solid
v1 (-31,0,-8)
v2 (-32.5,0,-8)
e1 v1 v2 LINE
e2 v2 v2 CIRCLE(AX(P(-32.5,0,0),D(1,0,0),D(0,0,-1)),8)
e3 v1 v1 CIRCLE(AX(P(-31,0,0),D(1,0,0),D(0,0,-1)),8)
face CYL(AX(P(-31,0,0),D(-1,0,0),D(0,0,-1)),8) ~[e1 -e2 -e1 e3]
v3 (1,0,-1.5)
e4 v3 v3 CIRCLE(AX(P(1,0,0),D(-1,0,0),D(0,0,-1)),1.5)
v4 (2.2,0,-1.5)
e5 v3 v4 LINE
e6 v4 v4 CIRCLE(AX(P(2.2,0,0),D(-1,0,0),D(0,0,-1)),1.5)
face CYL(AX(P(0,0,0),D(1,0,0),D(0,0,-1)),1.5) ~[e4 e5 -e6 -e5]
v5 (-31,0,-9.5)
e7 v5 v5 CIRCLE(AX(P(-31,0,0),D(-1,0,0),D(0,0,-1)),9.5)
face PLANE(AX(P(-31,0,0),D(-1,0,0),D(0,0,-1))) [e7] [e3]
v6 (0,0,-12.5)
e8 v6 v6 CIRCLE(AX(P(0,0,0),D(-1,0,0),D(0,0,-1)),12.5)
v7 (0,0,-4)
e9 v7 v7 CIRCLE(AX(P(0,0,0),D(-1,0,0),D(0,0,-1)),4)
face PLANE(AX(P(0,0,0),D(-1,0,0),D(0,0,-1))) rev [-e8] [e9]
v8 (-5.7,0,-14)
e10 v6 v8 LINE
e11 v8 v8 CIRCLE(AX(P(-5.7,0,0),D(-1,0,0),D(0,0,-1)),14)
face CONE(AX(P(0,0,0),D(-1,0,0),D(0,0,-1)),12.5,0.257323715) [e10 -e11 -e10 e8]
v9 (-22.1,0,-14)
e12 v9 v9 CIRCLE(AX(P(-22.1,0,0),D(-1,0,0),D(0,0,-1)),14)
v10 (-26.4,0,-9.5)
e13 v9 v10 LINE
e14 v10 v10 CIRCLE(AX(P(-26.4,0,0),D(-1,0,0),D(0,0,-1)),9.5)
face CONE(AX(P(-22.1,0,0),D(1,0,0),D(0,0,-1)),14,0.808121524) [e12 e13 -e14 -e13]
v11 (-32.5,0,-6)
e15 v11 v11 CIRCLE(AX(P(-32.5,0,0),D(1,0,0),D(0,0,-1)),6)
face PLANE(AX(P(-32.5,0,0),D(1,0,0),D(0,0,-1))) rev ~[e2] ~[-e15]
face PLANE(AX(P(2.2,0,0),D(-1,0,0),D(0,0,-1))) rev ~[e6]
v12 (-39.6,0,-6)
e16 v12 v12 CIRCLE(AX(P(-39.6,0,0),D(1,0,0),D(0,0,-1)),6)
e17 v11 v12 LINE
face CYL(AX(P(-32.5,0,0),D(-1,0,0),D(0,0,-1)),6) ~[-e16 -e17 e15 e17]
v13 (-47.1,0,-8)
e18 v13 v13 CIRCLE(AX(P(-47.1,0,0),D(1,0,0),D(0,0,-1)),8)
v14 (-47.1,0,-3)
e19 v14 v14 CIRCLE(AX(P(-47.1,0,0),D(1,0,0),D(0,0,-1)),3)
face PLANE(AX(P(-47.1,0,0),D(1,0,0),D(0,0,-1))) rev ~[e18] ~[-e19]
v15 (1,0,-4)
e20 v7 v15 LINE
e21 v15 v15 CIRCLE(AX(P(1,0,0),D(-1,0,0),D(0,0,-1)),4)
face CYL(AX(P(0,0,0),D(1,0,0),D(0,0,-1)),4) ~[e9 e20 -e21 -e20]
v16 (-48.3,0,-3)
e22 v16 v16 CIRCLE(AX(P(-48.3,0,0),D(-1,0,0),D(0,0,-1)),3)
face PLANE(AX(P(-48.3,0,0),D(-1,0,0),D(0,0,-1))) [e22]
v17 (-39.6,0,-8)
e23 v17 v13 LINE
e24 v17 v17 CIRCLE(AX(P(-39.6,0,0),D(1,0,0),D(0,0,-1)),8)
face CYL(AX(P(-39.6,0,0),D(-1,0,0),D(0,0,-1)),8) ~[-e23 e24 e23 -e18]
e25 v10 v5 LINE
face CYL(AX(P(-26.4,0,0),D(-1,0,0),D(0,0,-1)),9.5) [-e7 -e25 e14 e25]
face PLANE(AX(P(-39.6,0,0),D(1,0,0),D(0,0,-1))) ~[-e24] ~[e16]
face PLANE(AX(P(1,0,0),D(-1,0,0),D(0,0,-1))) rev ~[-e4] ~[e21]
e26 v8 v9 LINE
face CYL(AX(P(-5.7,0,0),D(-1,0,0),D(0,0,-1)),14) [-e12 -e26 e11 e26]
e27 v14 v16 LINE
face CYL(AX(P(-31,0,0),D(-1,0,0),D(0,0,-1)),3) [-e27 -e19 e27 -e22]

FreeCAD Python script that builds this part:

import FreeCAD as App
import Part
import Sketcher
from FreeCAD import Vector
Q = App.Units.Quantity

doc = App.newDocument("Part")
body = doc.addObject("PartDesign::Body", "Body")

sketch1 = body.newObject("Sketcher::SketchObject", "Sketch")
sketch1.AttachmentSupport = (doc.getObject("XZ_Plane"), [""])
sketch1.MapMode = "FlatFace"
sketch1.addGeometry([
    Part.LineSegment(Vector(-48.3, 0, 0), Vector(2.2, 0, 0)),
    Part.LineSegment(Vector(2.2, 0, 0), Vector(2.2, -1.5, 0)),
    Part.LineSegment(Vector(2.2, -1.5, 0), Vector(1, -1.5, 0)),
    Part.LineSegment(Vector(1, -1.5, 0), Vector(1, -4, 0)),
    Part.LineSegment(Vector(1, -4, 0), Vector(0, -4, 0)),
    Part.LineSegment(Vector(0, -4, 0), Vector(0, -12.5, 0)),
    Part.LineSegment(Vector(0, -12.5, 0), Vector(-5.7, -14, 0)),
    Part.LineSegment(Vector(-5.7, -14, 0), Vector(-22.1, -14, 0)),
    Part.LineSegment(Vector(-22.1, -14, 0), Vector(-26.4, -9.5, 0)),
    Part.LineSegment(Vector(-26.4, -9.5, 0), Vector(-31, -9.5, 0)),
    Part.LineSegment(Vector(-31, -9.5, 0), Vector(-31, -3, 0)),
    Part.LineSegment(Vector(-31, -3, 0), Vector(-48.3, -3, 0)),
    Part.LineSegment(Vector(-48.3, -3, 0), Vector(-48.3, 0, 0)),
], False)
sketch1.addConstraint([
    Sketcher.Constraint("Coincident", 0, 2, 1, 1),
    Sketcher.Constraint("Coincident", 1, 2, 2, 1),
    Sketcher.Constraint("Coincident", 2, 2, 3, 1),
    Sketcher.Constraint("Coincident", 3, 2, 4, 1),
    Sketcher.Constraint("Coincident", 4, 2, 5, 1),
    Sketcher.Constraint("Coincident", 5, 2, 6, 1),
    Sketcher.Constraint("Coincident", 6, 2, 7, 1),
    Sketcher.Constraint("Coincident", 7, 2, 8, 1),
    Sketcher.Constraint("Coincident", 8, 2, 9, 1),
    Sketcher.Constraint("Coincident", 9, 2, 10, 1),
    Sketcher.Constraint("Coincident", 10, 2, 11, 1),
    Sketcher.Constraint("Coincident", 11, 2, 12, 1),
    Sketcher.Constraint("Coincident", 12, 2, 0, 1),
    Sketcher.Constraint("Horizontal", 0),
    Sketcher.Constraint("Vertical", 1),
    Sketcher.Constraint("Horizontal", 2),
    Sketcher.Constraint("Vertical", 3),
    Sketcher.Constraint("Horizontal", 4),
    Sketcher.Constraint("Vertical", 5),
    Sketcher.Constraint("Horizontal", 7),
    Sketcher.Constraint("Horizontal", 9),
    Sketcher.Constraint("Vertical", 10),
    Sketcher.Constraint("Horizontal", 11),
    Sketcher.Constraint("Vertical", 12),
    Sketcher.Constraint("PointOnObject", 0, 2, -1),
    Sketcher.Constraint("PointOnObject", 4, 2, -2),
    Sketcher.Constraint("DistanceX", 4, 2, 4, 1, Q("1 mm")),
    Sketcher.Constraint("DistanceY", 12, 1, 12, 2, Q("3 mm")),
    Sketcher.Constraint("DistanceX", 7, 2, 7, 1, Q("16.4 mm")),
    Sketcher.Constraint("DistanceX", 9, 2, 9, 1, Q("4.6 mm")),
    Sketcher.Constraint("DistanceY", 1, 2, 1, 1, Q("1.5 mm")),
    Sketcher.Constraint("DistanceY", 3, 2, -1, 1, Q("4 mm")),
    Sketcher.Constraint("DistanceY", 6, 2, -1, 1, Q("14 mm")),
    Sketcher.Constraint("DistanceX", 9, 2, -1, 1, Q("31 mm")),
    Sketcher.Constraint("DistanceY", 5, 2, 8, 2, Q("3 mm")),
    Sketcher.Constraint("DistanceX", -1, 1, 0, 2, Q("2.2 mm")),
    Sketcher.Constraint("DistanceY", 5, 2, -1, 1, Q("12.5 mm")),
    Sketcher.Constraint("DistanceX", 6, 2, -1, 1, Q("5.7 mm")),
    Sketcher.Constraint("DistanceX", 11, 2, -1, 1, Q("48.3 mm")),
])
revolution = body.newObject("PartDesign::Revolution", "Revolution")
revolution.Profile = sketch1
revolution.ReferenceAxis = (sketch1, ["H_Axis"])
revolution.Angle = 360

sketch2 = body.newObject("Sketcher::SketchObject", "Sketch001")
sketch2.AttachmentSupport = (doc.getObject("XZ_Plane"), [""])
sketch2.MapMode = "FlatFace"
sketch2.addGeometry([
    Part.LineSegment(Vector(-47.1, -3, 0), Vector(-31, -3, 0)),
    Part.LineSegment(Vector(-31, -3, 0), Vector(-31, -8, 0)),
    Part.LineSegment(Vector(-31, -8, 0), Vector(-32.5, -8, 0)),
    Part.LineSegment(Vector(-32.5, -8, 0), Vector(-32.5, -6, 0)),
    Part.LineSegment(Vector(-32.5, -6, 0), Vector(-39.6, -6, 0)),
    Part.LineSegment(Vector(-39.6, -6, 0), Vector(-39.6, -8, 0)),
    Part.LineSegment(Vector(-39.6, -8, 0), Vector(-47.1, -8, 0)),
    Part.LineSegment(Vector(-47.1, -8, 0), Vector(-47.1, -3, 0)),
], False)
sketch2.addConstraint([
    Sketcher.Constraint("Coincident", 0, 2, 1, 1),
    Sketcher.Constraint("Coincident", 1, 2, 2, 1),
    Sketcher.Constraint("Coincident", 2, 2, 3, 1),
    Sketcher.Constraint("Coincident", 3, 2, 4, 1),
    Sketcher.Constraint("Coincident", 4, 2, 5, 1),
    Sketcher.Constraint("Coincident", 5, 2, 6, 1),
    Sketcher.Constraint("Coincident", 6, 2, 7, 1),
    Sketcher.Constraint("Coincident", 7, 2, 0, 1),
    Sketcher.Constraint("Horizontal", 0),
    Sketcher.Constraint("Vertical", 1),
    Sketcher.Constraint("Horizontal", 2),
    Sketcher.Constraint("Vertical", 3),
    Sketcher.Constraint("Horizontal", 4),
    Sketcher.Constraint("Vertical", 5),
    Sketcher.Constraint("Horizontal", 6),
    Sketcher.Constraint("Vertical", 7),
    Sketcher.Constraint("Horizontal", 2, 2, 5, 2),
    Sketcher.Constraint("DistanceX", 0, 1, 0, 2, Q("16.1 mm")),
    Sketcher.Constraint("DistanceX", 2, 2, 2, 1, Q("1.5 mm")),
    Sketcher.Constraint("DistanceX", 6, 2, 6, 1, Q("7.5 mm")),
    Sketcher.Constraint("DistanceY", 1, 2, -1, 1, Q("8 mm")),
    Sketcher.Constraint("DistanceY", 3, 2, -1, 1, Q("6 mm")),
    Sketcher.Constraint("DistanceY", 1, 2, 1, 1, Q("5 mm")),
    Sketcher.Constraint("DistanceX", 0, 2, -1, 1, Q("31 mm")),
])
revolution2 = body.newObject("PartDesign::Revolution", "Revolution001")
revolution2.Profile = sketch2
revolution2.ReferenceAxis = (sketch2, ["H_Axis"])
revolution2.Angle = 360

doc.recompute()
